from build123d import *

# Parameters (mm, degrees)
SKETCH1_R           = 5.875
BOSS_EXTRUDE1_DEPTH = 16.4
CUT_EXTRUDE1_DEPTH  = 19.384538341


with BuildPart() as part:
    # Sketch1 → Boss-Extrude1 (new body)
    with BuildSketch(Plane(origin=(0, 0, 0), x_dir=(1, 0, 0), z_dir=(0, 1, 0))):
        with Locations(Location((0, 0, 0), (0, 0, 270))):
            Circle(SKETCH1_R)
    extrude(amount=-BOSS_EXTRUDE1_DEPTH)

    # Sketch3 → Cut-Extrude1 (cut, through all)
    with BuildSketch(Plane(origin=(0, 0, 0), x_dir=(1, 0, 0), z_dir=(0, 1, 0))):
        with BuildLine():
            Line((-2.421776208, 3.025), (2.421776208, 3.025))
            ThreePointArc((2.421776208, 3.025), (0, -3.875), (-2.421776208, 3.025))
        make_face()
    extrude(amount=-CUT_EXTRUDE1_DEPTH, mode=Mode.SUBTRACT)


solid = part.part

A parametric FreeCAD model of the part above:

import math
import FreeCAD as App
import Part
import Sketcher

doc = App.newDocument("Part")
body = doc.addObject("PartDesign::Body", "Body")

# Sketch on XZ plane
sketch1 = doc.addObject("Sketcher::SketchObject", "Sketch")
body.addObject(sketch1)
sketch1.AttachmentSupport = (doc.XZ_Plane, [""])
sketch1.MapMode = "FlatFace"
sketch1.addGeometry(Part.Circle(App.Vector(0, 0, 0), App.Vector(0, 0, 1), 6), False)
sketch1.addConstraint([
    Sketcher.Constraint("Coincident", 0, 3, -1, 1),
    Sketcher.Constraint("Diameter", 0, 11.75),
])
pad1 = doc.addObject("PartDesign::Pad", "Pad")
body.addObject(pad1)
pad1.Profile = sketch1
pad1.Length = 16.4

# Sketch on XZ plane
sketch2 = doc.addObject("Sketcher::SketchObject", "Sketch001")
body.addObject(sketch2)
sketch2.AttachmentSupport = (doc.XZ_Plane, [""])
sketch2.MapMode = "FlatFace"
sketch2.addGeometry([
    Part.LineSegment(App.Vector(2.4, -3, 0), App.Vector(-2.4, -3, 0)),
    Part.ArcOfCircle(Part.Circle(App.Vector(0, 0, 0), App.Vector(0, 0, 1), 3.9), math.radians(-51), math.radians(231)),
], False)
sketch2.addConstraint([
    Sketcher.Constraint("Coincident", 0, 1, 1, 1),
    Sketcher.Constraint("Coincident", 1, 2, 0, 2),
    Sketcher.Constraint("Horizontal", 0),
    Sketcher.Constraint("Coincident", 1, 3, -1, 1),
    Sketcher.Constraint("Radius", 1, 3.875),
    Sketcher.Constraint("DistanceY", 0, 1, -1, 1, 3.025),
])
pocket1 = doc.addObject("PartDesign::Pocket", "Pocket")
body.addObject(pocket1)
pocket1.Profile = sketch2
pocket1.Type = "ThroughAll"
pocket1.Reversed = True

doc.recompute()
